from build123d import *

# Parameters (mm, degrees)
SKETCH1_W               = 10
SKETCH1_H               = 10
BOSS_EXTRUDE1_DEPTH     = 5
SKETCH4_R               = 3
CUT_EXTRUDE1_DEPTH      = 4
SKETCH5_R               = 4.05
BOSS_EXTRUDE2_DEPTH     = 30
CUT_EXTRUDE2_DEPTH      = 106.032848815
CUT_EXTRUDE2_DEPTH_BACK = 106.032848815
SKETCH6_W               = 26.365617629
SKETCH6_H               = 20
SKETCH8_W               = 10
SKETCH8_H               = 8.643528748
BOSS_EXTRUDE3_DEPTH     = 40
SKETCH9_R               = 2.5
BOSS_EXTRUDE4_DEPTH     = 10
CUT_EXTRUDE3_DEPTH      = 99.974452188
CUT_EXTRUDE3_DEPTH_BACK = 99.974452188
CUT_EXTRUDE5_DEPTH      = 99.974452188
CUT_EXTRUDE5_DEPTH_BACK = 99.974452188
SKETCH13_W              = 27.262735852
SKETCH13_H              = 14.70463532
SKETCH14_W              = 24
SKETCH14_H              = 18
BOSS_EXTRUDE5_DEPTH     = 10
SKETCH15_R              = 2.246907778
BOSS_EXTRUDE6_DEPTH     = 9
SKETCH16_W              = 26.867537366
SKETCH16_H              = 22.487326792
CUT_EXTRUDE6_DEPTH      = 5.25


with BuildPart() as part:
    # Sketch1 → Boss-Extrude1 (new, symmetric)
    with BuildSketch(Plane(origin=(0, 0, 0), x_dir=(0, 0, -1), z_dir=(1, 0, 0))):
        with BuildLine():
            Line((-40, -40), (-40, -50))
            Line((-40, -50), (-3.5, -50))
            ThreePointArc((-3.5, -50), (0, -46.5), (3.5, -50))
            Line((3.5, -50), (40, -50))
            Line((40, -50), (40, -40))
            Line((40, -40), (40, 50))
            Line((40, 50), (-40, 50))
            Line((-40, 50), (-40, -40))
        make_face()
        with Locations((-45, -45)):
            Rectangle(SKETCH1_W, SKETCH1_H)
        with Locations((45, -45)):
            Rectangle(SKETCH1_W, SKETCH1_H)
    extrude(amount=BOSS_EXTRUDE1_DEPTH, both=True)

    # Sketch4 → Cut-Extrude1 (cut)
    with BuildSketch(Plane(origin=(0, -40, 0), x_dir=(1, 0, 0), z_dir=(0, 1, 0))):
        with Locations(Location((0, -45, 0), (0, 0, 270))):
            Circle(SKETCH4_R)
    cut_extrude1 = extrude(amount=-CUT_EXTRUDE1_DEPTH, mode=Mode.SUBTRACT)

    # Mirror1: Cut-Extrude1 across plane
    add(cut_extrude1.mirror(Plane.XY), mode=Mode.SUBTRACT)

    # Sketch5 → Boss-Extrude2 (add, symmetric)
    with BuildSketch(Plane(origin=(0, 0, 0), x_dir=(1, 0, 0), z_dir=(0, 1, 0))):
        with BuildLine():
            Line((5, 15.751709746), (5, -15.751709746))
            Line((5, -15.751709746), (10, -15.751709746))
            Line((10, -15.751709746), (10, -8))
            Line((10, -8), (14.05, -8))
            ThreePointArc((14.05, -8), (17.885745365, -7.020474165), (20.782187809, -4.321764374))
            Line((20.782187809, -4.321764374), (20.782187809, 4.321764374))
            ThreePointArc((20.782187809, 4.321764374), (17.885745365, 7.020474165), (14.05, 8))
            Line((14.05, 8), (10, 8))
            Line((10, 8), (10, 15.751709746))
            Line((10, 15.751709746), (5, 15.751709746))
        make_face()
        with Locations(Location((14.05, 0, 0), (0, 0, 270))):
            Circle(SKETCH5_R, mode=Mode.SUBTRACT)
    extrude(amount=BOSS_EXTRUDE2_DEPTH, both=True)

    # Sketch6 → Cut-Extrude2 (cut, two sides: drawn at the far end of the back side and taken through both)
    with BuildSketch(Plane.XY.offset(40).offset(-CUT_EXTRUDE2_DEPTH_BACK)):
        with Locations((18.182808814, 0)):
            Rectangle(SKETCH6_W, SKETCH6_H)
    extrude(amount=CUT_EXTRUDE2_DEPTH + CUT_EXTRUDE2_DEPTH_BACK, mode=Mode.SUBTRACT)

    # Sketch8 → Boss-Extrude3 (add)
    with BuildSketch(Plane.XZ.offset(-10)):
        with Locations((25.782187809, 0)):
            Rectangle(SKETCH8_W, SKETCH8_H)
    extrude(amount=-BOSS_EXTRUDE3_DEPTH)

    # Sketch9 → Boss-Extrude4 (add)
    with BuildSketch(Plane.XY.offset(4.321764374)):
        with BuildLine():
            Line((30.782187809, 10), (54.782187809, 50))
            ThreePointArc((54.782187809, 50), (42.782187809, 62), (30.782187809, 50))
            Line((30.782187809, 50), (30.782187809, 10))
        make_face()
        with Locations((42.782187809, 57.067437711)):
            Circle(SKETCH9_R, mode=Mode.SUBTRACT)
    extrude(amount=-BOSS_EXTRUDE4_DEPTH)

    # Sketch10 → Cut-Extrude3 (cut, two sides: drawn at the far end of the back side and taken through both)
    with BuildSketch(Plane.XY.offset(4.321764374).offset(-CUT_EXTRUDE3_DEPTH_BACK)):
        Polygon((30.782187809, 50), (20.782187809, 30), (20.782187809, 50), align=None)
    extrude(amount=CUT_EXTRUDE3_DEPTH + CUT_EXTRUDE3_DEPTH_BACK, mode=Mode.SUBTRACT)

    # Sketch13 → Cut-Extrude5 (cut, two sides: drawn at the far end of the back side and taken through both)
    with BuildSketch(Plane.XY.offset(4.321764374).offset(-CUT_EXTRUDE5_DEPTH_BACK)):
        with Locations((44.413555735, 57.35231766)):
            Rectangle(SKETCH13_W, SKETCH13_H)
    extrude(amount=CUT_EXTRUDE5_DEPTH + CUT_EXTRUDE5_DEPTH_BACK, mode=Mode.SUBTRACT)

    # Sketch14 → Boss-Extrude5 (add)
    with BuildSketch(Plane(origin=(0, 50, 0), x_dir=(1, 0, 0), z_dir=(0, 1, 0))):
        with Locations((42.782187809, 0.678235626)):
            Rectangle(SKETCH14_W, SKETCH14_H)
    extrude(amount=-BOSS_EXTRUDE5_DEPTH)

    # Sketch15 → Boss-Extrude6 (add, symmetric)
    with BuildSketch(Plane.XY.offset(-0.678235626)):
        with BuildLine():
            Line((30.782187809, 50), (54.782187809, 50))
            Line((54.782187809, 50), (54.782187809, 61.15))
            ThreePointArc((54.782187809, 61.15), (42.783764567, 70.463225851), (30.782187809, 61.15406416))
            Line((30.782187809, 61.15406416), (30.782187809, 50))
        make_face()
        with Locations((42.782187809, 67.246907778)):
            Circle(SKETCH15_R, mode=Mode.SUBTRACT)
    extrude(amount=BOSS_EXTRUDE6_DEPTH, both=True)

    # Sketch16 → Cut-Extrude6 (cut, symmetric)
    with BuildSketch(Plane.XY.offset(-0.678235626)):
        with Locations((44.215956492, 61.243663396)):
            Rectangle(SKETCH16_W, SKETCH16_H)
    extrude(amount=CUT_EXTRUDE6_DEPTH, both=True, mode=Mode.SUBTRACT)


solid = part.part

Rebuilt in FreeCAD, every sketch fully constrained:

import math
import FreeCAD as App
import Part
import Sketcher
from FreeCAD import Vector
Q = App.Units.Quantity

doc = App.newDocument("Part")
body = doc.addObject("PartDesign::Body", "Body")

# Sketch on YZ plane
sketch1 = doc.addObject("Sketcher::SketchObject", "Sketch")
body.addObject(sketch1)
sketch1.AttachmentSupport = (doc.YZ_Plane, [""])
sketch1.MapMode = "FlatFace"
sketch1.addGeometry([
    Part.ArcOfCircle(Part.Circle(Vector(-50, 0, 0), Vector(0, 0, 1), 3.5), math.radians(-90), math.radians(90)),  # 0
    Part.LineSegment(Vector(-50, -3.5, 0), Vector(-50, -50, 0)),  # 1
    Part.LineSegment(Vector(-50, -50, 0), Vector(-40, -50, 0)),  # 2
    Part.LineSegment(Vector(-40, -50, 0), Vector(-40, -40, 0)),  # 3
    Part.LineSegment(Vector(-40, -40, 0), Vector(50, -40, 0)),  # 4
    Part.LineSegment(Vector(50, -40, 0), Vector(50, 40, 0)),  # 5
    Part.LineSegment(Vector(50, 40, 0), Vector(-40, 40, 0)),  # 6
    Part.LineSegment(Vector(-40, 40, 0), Vector(-40, 50, 0)),  # 7
    Part.LineSegment(Vector(-40, 50, 0), Vector(-50, 50, 0)),  # 8
    Part.LineSegment(Vector(-50, 50, 0), Vector(-50, 3.5, 0)),  # 9
], False)
sketch1.addConstraint([
    Sketcher.Constraint("Coincident", 0, 1, 1, 1),
    Sketcher.Constraint("Coincident", 1, 2, 2, 1),
    Sketcher.Constraint("Coincident", 2, 2, 3, 1),
    Sketcher.Constraint("Coincident", 3, 2, 4, 1),
    Sketcher.Constraint("Coincident", 4, 2, 5, 1),
    Sketcher.Constraint("Coincident", 5, 2, 6, 1),
    Sketcher.Constraint("Coincident", 6, 2, 7, 1),
    Sketcher.Constraint("Coincident", 7, 2, 8, 1),
    Sketcher.Constraint("Coincident", 8, 2, 9, 1),
    Sketcher.Constraint("Coincident", 9, 2, 0, 2),
    Sketcher.Constraint("Vertical", 1),
    Sketcher.Constraint("Horizontal", 2),
    Sketcher.Constraint("Vertical", 3),
    Sketcher.Constraint("Horizontal", 4),
    Sketcher.Constraint("Vertical", 5),
    Sketcher.Constraint("Horizontal", 6),
    Sketcher.Constraint("Vertical", 7),
    Sketcher.Constraint("Horizontal", 8),
    Sketcher.Constraint("Vertical", 9),
    Sketcher.Constraint("Symmetric", 3, 2, 6, 2, -1),
    Sketcher.Constraint("Symmetric", 1, 2, 8, 2, -1),
    Sketcher.Constraint("PointOnObject", 0, 3, -1),
    Sketcher.Constraint("Equal", 8, 3),
    Sketcher.Constraint("Radius", 0, Q("3.5 mm")),
    Sketcher.Constraint("DistanceX", 2, 1, 2, 2, Q("10 mm")),
    Sketcher.Constraint("DistanceX", 4, 1, 4, 2, Q("90 mm")),
    Sketcher.Constraint("DistanceY", 5, 1, 5, 2, Q("80 mm")),
    Sketcher.Constraint("DistanceX", 0, 3, -1, 1, Q("50 mm")),
    Sketcher.Constraint("DistanceX", 0, 1, -1, 1, Q("50 mm")),
])
pad1 = doc.addObject("PartDesign::Pad", "Pad")
body.addObject(pad1)
pad1.Profile = sketch1
pad1.Length = 10
pad1.Midplane = True

# Sketch on XZ plane
sketch2 = doc.addObject("Sketcher::SketchObject", "Sketch001")
body.addObject(sketch2)
sketch2.AttachmentSupport = (doc.XZ_Plane, [""])
sketch2.MapMode = "FlatFace"
sketch2.AttachmentOffset = App.Placement(Vector(0, 0, 40), App.Rotation())
sketch2.addGeometry(Part.Circle(Vector(0, 45, 0), Vector(0, 0, 1), 3), False)
sketch2.addConstraint([
    Sketcher.Constraint("PointOnObject", 0, 3, -2),
    Sketcher.Constraint("Diameter", 0, Q("6 mm")),
    Sketcher.Constraint("DistanceY", -1, 1, 0, 3, Q("45 mm")),
])
pocket1 = doc.addObject("PartDesign::Pocket", "Pocket")
body.addObject(pocket1)
pocket1.Profile = sketch2
pocket1.Length = 4
pocket1.Reversed = True
doc.recompute()

mirrored = doc.addObject("PartDesign::Mirrored", "Mirrored")
body.addObject(mirrored)
mirrored.Originals = [pocket1]
mirrored.MirrorPlane = (doc.XY_Plane, [""])
body.Tip = mirrored

# Sketch on XZ plane
sketch3 = doc.addObject("Sketcher::SketchObject", "Sketch002")
body.addObject(sketch3)
sketch3.AttachmentSupport = (doc.XZ_Plane, [""])
sketch3.MapMode = "FlatFace"
sketch3.addGeometry([
    Part.LineSegment(Vector(5, -15.8, 0), Vector(5, 15.8, 0)),  # 0
    Part.LineSegment(Vector(5, 15.8, 0), Vector(10, 15.8, 0)),  # 1
    Part.LineSegment(Vector(10, 15.8, 0), Vector(10, 8, 0)),  # 2
    Part.LineSegment(Vector(10, 8, 0), Vector(14.1, 8, 0)),  # 3
    Part.ArcOfCircle(Part.Circle(Vector(14.1, 0, 0), Vector(0, 0, 1), 8), math.radians(33), math.radians(90)),  # 4
    Part.LineSegment(Vector(20.8, 4.3, 0), Vector(20.8, -4.3, 0)),  # 5
    Part.ArcOfCircle(Part.Circle(Vector(14.1, 0, 0), Vector(0, 0, 1), 8), math.radians(-90), math.radians(-33)),  # 6
    Part.LineSegment(Vector(14.1, -8, 0), Vector(10, -8, 0)),  # 7
    Part.LineSegment(Vector(10, -8, 0), Vector(10, -15.8, 0)),  # 8
    Part.LineSegment(Vector(10, -15.8, 0), Vector(5, -15.8, 0)),  # 9
    Part.Circle(Vector(14.1, 0, 0), Vector(0, 0, 1), 4),  # 10
], False)
sketch3.addConstraint([
    Sketcher.Constraint("Coincident", 0, 2, 1, 1),
    Sketcher.Constraint("Coincident", 1, 2, 2, 1),
    Sketcher.Constraint("Coincident", 2, 2, 3, 1),
    Sketcher.Constraint("Tangent", 3, 2, 4, 2),
    Sketcher.Constraint("Coincident", 4, 1, 5, 1),
    Sketcher.Constraint("Coincident", 5, 2, 6, 2),
    Sketcher.Constraint("Tangent", 6, 1, 7, 1),
    Sketcher.Constraint("Coincident", 7, 2, 8, 1),
    Sketcher.Constraint("Coincident", 8, 2, 9, 1),
    Sketcher.Constraint("Coincident", 9, 2, 0, 1),
    Sketcher.Constraint("Vertical", 0),
    Sketcher.Constraint("Horizontal", 1),
    Sketcher.Constraint("Vertical", 2),
    Sketcher.Constraint("Horizontal", 3),
    Sketcher.Constraint("Vertical", 5),
    Sketcher.Constraint("Horizontal", 7),
    Sketcher.Constraint("Vertical", 8),
    Sketcher.Constraint("Horizontal", 9),
    Sketcher.Constraint("Coincident", 6, 3, 4, 3),
    Sketcher.Constraint("Coincident", 10, 3, 4, 3),
    Sketcher.Constraint("Equal", 4, 6),
    Sketcher.Constraint("Symmetric", 2, 2, 7, 2, -1),
    Sketcher.Constraint("Equal", 2, 8),
    Sketcher.Constraint("Radius", 4, Q("8 mm")),
    Sketcher.Constraint("Diameter", 10, Q("8.1 mm")),
    Sketcher.Constraint("DistanceX", 1, 1, 1, 2, Q("5 mm")),
    Sketcher.Constraint("DistanceX", -1, 1, 0, 2, Q("5 mm")),
    Sketcher.Constraint("DistanceX", 3, 1, 3, 2, Q("4.05 mm")),
    Sketcher.Constraint("DistanceY", 0, 1, 0, 2, Q("31.503419 mm")),
    Sketcher.Constraint("DistanceY", 5, 2, 5, 1, Q("8.643529 mm")),
])
pad2 = doc.addObject("PartDesign::Pad", "Pad001")
body.addObject(pad2)
pad2.Profile = sketch3
pad2.Length = 60
pad2.Midplane = True

# Sketch on XY plane
sketch4 = doc.addObject("Sketcher::SketchObject", "Sketch003")
body.addObject(sketch4)
sketch4.AttachmentSupport = (doc.XY_Plane, [""])
sketch4.MapMode = "FlatFace"
sketch4.AttachmentOffset = App.Placement(Vector(0, 0, 40), App.Rotation())
sketch4.addGeometry([
    Part.LineSegment(Vector(5, 10, 0), Vector(5, -10, 0)),
    Part.LineSegment(Vector(5, -10, 0), Vector(31, -10, 0)),
    Part.LineSegment(Vector(31, -10, 0), Vector(31, 10, 0)),
    Part.LineSegment(Vector(31, 10, 0), Vector(5, 10, 0)),
], False)
sketch4.addConstraint([
    Sketcher.Constraint("Coincident", 0, 2, 1, 1),
    Sketcher.Constraint("Coincident", 1, 2, 2, 1),
    Sketcher.Constraint("Coincident", 2, 2, 3, 1),
    Sketcher.Constraint("Coincident", 3, 2, 0, 1),
    Sketcher.Constraint("Vertical", 0),
    Sketcher.Constraint("Horizontal", 1),
    Sketcher.Constraint("Vertical", 2),
    Sketcher.Constraint("Horizontal", 3),
    Sketcher.Constraint("DistanceY", 0, 2, 0, 1, Q("20 mm")),
    Sketcher.Constraint("DistanceX", -1, 1, 0, 2, Q("5 mm")),
    Sketcher.Constraint("DistanceY", 0, 2, -1, 1, Q("10 mm")),
    Sketcher.Constraint("DistanceX", 1, 1, 1, 2, Q("26.365618 mm")),
])
pocket2 = doc.addObject("PartDesign::Pocket", "Pocket001")
body.addObject(pocket2)
pocket2.Profile = sketch4
pocket2.Type = "ThroughAll"
pocket2.Midplane = True

# Sketch on XZ plane
sketch5 = doc.addObject("Sketcher::SketchObject", "Sketch004")
body.addObject(sketch5)
sketch5.AttachmentSupport = (doc.XZ_Plane, [""])
sketch5.MapMode = "FlatFace"
sketch5.AttachmentOffset = App.Placement(Vector(0, 0, -10), App.Rotation())
sketch5.addGeometry([
    Part.LineSegment(Vector(21, 4, 0), Vector(21, -4, 0)),
    Part.LineSegment(Vector(21, -4, 0), Vector(31, -4, 0)),
    Part.LineSegment(Vector(31, -4, 0), Vector(31, 4, 0)),
    Part.LineSegment(Vector(31, 4, 0), Vector(21, 4, 0)),
], False)
sketch5.addConstraint([
    Sketcher.Constraint("Coincident", 0, 2, 1, 1),
    Sketcher.Constraint("Coincident", 1, 2, 2, 1),
    Sketcher.Constraint("Coincident", 2, 2, 3, 1),
    Sketcher.Constraint("Coincident", 3, 2, 0, 1),
    Sketcher.Constraint("Vertical", 0),
    Sketcher.Constraint("Horizontal", 1),
    Sketcher.Constraint("Vertical", 2),
    Sketcher.Constraint("Horizontal", 3),
    Sketcher.Constraint("DistanceX", 1, 1, 1, 2, Q("10 mm")),
    Sketcher.Constraint("DistanceY", 0, 2, 0, 1, Q("8.643529 mm")),
    Sketcher.Constraint("DistanceX", -1, 1, 0, 2, Q("20.782188 mm")),
    Sketcher.Constraint("DistanceY", 0, 2, -1, 1, Q("4.321764 mm")),
])
pad3 = doc.addObject("PartDesign::Pad", "Pad002")
body.addObject(pad3)
pad3.Profile = sketch5
pad3.Length = 40
pad3.Reversed = True

# Sketch on XY plane
sketch6 = doc.addObject("Sketcher::SketchObject", "Sketch005")
body.addObject(sketch6)
sketch6.AttachmentSupport = (doc.XY_Plane, [""])
sketch6.MapMode = "FlatFace"
sketch6.AttachmentOffset = App.Placement(Vector(0, 0, 4.321764), App.Rotation())
sketch6.addGeometry([
    Part.LineSegment(Vector(30.8, 10, 0), Vector(54.8, 50, 0)),
    Part.ArcOfCircle(Part.Circle(Vector(42.8, 50, 0), Vector(0, 0, 1), 12), math.radians(0), math.radians(180)),
    Part.LineSegment(Vector(30.8, 50, 0), Vector(30.8, 10, 0)),
    Part.Circle(Vector(42.8, 57.1, 0), Vector(0, 0, 1), 2.5),
], False)
sketch6.addConstraint([
    Sketcher.Constraint("Coincident", 0, 2, 1, 1),
    Sketcher.Constraint("Tangent", 1, 2, 2, 1),
    Sketcher.Constraint("Coincident", 2, 2, 0, 1),
    Sketcher.Constraint("Vertical", 2),
    Sketcher.Constraint("Horizontal", 1, 3, 0, 2),
    Sketcher.Constraint("Vertical", 1, 3, 3, 3),
    Sketcher.Constraint("Diameter", 3, Q("5 mm")),
    Sketcher.Constraint("Radius", 1, Q("12 mm")),
    Sketcher.Constraint("DistanceY", 2, 2, 2, 1, Q("40 mm")),
    Sketcher.Constraint("DistanceY", -1, 1, 1, 3, Q("50 mm")),
    Sketcher.Constraint("DistanceX", -1, 1, 1, 3, Q("42.782188 mm")),
    Sketcher.Constraint("DistanceY", -1, 1, 3, 3, Q("57.067438 mm")),
])
pad4 = doc.addObject("PartDesign::Pad", "Pad003")
body.addObject(pad4)
pad4.Profile = sketch6
pad4.Length = 10
pad4.Reversed = True

# Sketch on XY plane
sketch7 = doc.addObject("Sketcher::SketchObject", "Sketch006")
body.addObject(sketch7)
sketch7.AttachmentSupport = (doc.XY_Plane, [""])
sketch7.MapMode = "FlatFace"
sketch7.AttachmentOffset = App.Placement(Vector(0, 0, 4.321764), App.Rotation())
sketch7.addGeometry([
    Part.LineSegment(Vector(21, 30, 0), Vector(31, 50, 0)),
    Part.LineSegment(Vector(31, 50, 0), Vector(21, 50, 0)),
    Part.LineSegment(Vector(21, 50, 0), Vector(21, 30, 0)),
], False)
sketch7.addConstraint([
    Sketcher.Constraint("Coincident", 0, 2, 1, 1),
    Sketcher.Constraint("Coincident", 1, 2, 2, 1),
    Sketcher.Constraint("Coincident", 2, 2, 0, 1),
    Sketcher.Constraint("Horizontal", 1),
    Sketcher.Constraint("Vertical", 2),
    Sketcher.Constraint("DistanceX", 1, 2, 1, 1, Q("10 mm")),
    Sketcher.Constraint("DistanceY", 2, 2, 2, 1, Q("20 mm")),
    Sketcher.Constraint("DistanceY", -1, 1, 0, 2, Q("50 mm")),
    Sketcher.Constraint("DistanceX", -1, 1, 0, 2, Q("30.782188 mm")),
])
pocket3 = doc.addObject("PartDesign::Pocket", "Pocket002")
body.addObject(pocket3)
pocket3.Profile = sketch7
pocket3.Type = "ThroughAll"
pocket3.Midplane = True

# Sketch on XY plane
sketch8 = doc.addObject("Sketcher::SketchObject", "Sketch007")
body.addObject(sketch8)
sketch8.AttachmentSupport = (doc.XY_Plane, [""])
sketch8.MapMode = "FlatFace"
sketch8.AttachmentOffset = App.Placement(Vector(0, 0, 4.321764), App.Rotation())
sketch8.addGeometry([
    Part.LineSegment(Vector(31, 65, 0), Vector(31, 50, 0)),
    Part.LineSegment(Vector(31, 50, 0), Vector(58, 50, 0)),
    Part.LineSegment(Vector(58, 50, 0), Vector(58, 65, 0)),
    Part.LineSegment(Vector(58, 65, 0), Vector(31, 65, 0)),
], False)
sketch8.addConstraint([
    Sketcher.Constraint("Coincident", 0, 2, 1, 1),
    Sketcher.Constraint("Coincident", 1, 2, 2, 1),
    Sketcher.Constraint("Coincident", 2, 2, 3, 1),
    Sketcher.Constraint("Coincident", 3, 2, 0, 1),
    Sketcher.Constraint("Vertical", 0),
    Sketcher.Constraint("Horizontal", 1),
    Sketcher.Constraint("Vertical", 2),
    Sketcher.Constraint("Horizontal", 3),
    Sketcher.Constraint("DistanceY", -1, 1, 0, 2, Q("50 mm")),
    Sketcher.Constraint("DistanceX", 1, 1, 1, 2, Q("27.262736 mm")),
    Sketcher.Constraint("DistanceY", 0, 2, 0, 1, Q("14.704635 mm")),
    Sketcher.Constraint("DistanceX", -1, 1, 0, 2, Q("30.782188 mm")),
])
pocket4 = doc.addObject("PartDesign::Pocket", "Pocket003")
body.addObject(pocket4)
pocket4.Profile = sketch8
pocket4.Type = "ThroughAll"
pocket4.Midplane = True

# Sketch on XZ plane
sketch9 = doc.addObject("Sketcher::SketchObject", "Sketch008")
body.addObject(sketch9)
sketch9.AttachmentSupport = (doc.XZ_Plane, [""])
sketch9.MapMode = "FlatFace"
sketch9.AttachmentOffset = App.Placement(Vector(0, 0, -50), App.Rotation())
sketch9.addGeometry([
    Part.LineSegment(Vector(31, -10, 0), Vector(31, 8, 0)),
    Part.LineSegment(Vector(31, 8, 0), Vector(55, 8, 0)),
    Part.LineSegment(Vector(55, 8, 0), Vector(55, -10, 0)),
    Part.LineSegment(Vector(55, -10, 0), Vector(31, -10, 0)),
], False)
sketch9.addConstraint([
    Sketcher.Constraint("Coincident", 0, 2, 1, 1),
    Sketcher.Constraint("Coincident", 1, 2, 2, 1),
    Sketcher.Constraint("Coincident", 2, 2, 3, 1),
    Sketcher.Constraint("Coincident", 3, 2, 0, 1),
    Sketcher.Constraint("Vertical", 0),
    Sketcher.Constraint("Horizontal", 1),
    Sketcher.Constraint("Vertical", 2),
    Sketcher.Constraint("Horizontal", 3),
    Sketcher.Constraint("DistanceX", 1, 1, 1, 2, Q("24 mm")),
    Sketcher.Constraint("DistanceY", 0, 1, 0, 2, Q("18 mm")),
    Sketcher.Constraint("DistanceX", -1, 1, 0, 2, Q("30.782188 mm")),
    Sketcher.Constraint("DistanceY", -1, 1, 0, 2, Q("8.321764 mm")),
])
pad5 = doc.addObject("PartDesign::Pad", "Pad004")
body.addObject(pad5)
pad5.Profile = sketch9
pad5.Length = 10

# Sketch on XY plane
sketch10 = doc.addObject("Sketcher::SketchObject", "Sketch009")
body.addObject(sketch10)
sketch10.AttachmentSupport = (doc.XY_Plane, [""])
sketch10.MapMode = "FlatFace"
sketch10.AttachmentOffset = App.Placement(Vector(0, 0, -0.678236), App.Rotation())
sketch10.addGeometry([
    Part.LineSegment(Vector(30.8, 50, 0), Vector(54.8, 50, 0)),  # 0
    Part.LineSegment(Vector(54.8, 50, 0), Vector(54.8, 61.1, 0)),  # 1
    Part.ArcOfCircle(Part.Circle(Vector(42.8, 58.1, 0), Vector(0, 0, 1), 12.4), math.radians(14), math.radians(166)),  # 2
    Part.LineSegment(Vector(30.8, 61.2, 0), Vector(30.8, 50, 0)),  # 3
    Part.Circle(Vector(42.8, 67.2, 0), Vector(0, 0, 1), 2.2),  # 4
], False)
sketch10.addConstraint([
    Sketcher.Constraint("Coincident", 0, 2, 1, 1),
    Sketcher.Constraint("Coincident", 1, 2, 2, 1),
    Sketcher.Constraint("Coincident", 2, 2, 3, 1),
    Sketcher.Constraint("Coincident", 3, 2, 0, 1),
    Sketcher.Constraint("Horizontal", 0),
    Sketcher.Constraint("Vertical", 1),
    Sketcher.Constraint("Vertical", 3),
    Sketcher.Constraint("DistanceX", 0, 1, 0, 2, Q("24 mm")),
    Sketcher.Constraint("DistanceY", -1, 1, 0, 2, Q("50 mm")),
    Sketcher.Constraint("DistanceX", 4, 3, 0, 2, Q("12 mm")),
    Sketcher.Constraint("DistanceY", 1, 1, 1, 2, Q("11.15 mm")),
    Sketcher.Constraint("Diameter", 4, Q("4.493816 mm")),
    Sketcher.Constraint("DistanceY", -1, 1, 2, 3, Q("58.075001 mm")),
    Sketcher.Constraint("Radius", 2, Q("12.388225 mm")),
    Sketcher.Constraint("DistanceX", -1, 1, 2, 3, Q("42.781667 mm")),
    Sketcher.Constraint("DistanceY", -1, 1, 4, 3, Q("67.246908 mm")),
])
pad6 = doc.addObject("PartDesign::Pad", "Pad005")
body.addObject(pad6)
pad6.Profile = sketch10
pad6.Length = 18
pad6.Midplane = True

# Sketch on XY plane
sketch11 = doc.addObject("Sketcher::SketchObject", "Sketch010")
body.addObject(sketch11)
sketch11.AttachmentSupport = (doc.XY_Plane, [""])
sketch11.MapMode = "FlatFace"
sketch11.AttachmentOffset = App.Placement(Vector(0, 0, -0.678236), App.Rotation())
sketch11.addGeometry([
    Part.LineSegment(Vector(31, 72, 0), Vector(31, 50, 0)),
    Part.LineSegment(Vector(31, 50, 0), Vector(58, 50, 0)),
    Part.LineSegment(Vector(58, 50, 0), Vector(58, 72, 0)),
    Part.LineSegment(Vector(58, 72, 0), Vector(31, 72, 0)),
], False)
sketch11.addConstraint([
    Sketcher.Constraint("Coincident", 0, 2, 1, 1),
    Sketcher.Constraint("Coincident", 1, 2, 2, 1),
    Sketcher.Constraint("Coincident", 2, 2, 3, 1),
    Sketcher.Constraint("Coincident", 3, 2, 0, 1),
    Sketcher.Constraint("Vertical", 0),
    Sketcher.Constraint("Horizontal", 1),
    Sketcher.Constraint("Vertical", 2),
    Sketcher.Constraint("Horizontal", 3),
    Sketcher.Constraint("DistanceY", -1, 1, 0, 2, Q("50 mm")),
    Sketcher.Constraint("DistanceX", 1, 1, 1, 2, Q("26.867537 mm")),
    Sketcher.Constraint("DistanceY", 0, 2, 0, 1, Q("22.487327 mm")),
    Sketcher.Constraint("DistanceX", -1, 1, 0, 2, Q("30.782188 mm")),
])
pocket5 = doc.addObject("PartDesign::Pocket", "Pocket004")
body.addObject(pocket5)
pocket5.Profile = sketch11
pocket5.Length = 10.5
pocket5.Midplane = True

doc.recompute()
